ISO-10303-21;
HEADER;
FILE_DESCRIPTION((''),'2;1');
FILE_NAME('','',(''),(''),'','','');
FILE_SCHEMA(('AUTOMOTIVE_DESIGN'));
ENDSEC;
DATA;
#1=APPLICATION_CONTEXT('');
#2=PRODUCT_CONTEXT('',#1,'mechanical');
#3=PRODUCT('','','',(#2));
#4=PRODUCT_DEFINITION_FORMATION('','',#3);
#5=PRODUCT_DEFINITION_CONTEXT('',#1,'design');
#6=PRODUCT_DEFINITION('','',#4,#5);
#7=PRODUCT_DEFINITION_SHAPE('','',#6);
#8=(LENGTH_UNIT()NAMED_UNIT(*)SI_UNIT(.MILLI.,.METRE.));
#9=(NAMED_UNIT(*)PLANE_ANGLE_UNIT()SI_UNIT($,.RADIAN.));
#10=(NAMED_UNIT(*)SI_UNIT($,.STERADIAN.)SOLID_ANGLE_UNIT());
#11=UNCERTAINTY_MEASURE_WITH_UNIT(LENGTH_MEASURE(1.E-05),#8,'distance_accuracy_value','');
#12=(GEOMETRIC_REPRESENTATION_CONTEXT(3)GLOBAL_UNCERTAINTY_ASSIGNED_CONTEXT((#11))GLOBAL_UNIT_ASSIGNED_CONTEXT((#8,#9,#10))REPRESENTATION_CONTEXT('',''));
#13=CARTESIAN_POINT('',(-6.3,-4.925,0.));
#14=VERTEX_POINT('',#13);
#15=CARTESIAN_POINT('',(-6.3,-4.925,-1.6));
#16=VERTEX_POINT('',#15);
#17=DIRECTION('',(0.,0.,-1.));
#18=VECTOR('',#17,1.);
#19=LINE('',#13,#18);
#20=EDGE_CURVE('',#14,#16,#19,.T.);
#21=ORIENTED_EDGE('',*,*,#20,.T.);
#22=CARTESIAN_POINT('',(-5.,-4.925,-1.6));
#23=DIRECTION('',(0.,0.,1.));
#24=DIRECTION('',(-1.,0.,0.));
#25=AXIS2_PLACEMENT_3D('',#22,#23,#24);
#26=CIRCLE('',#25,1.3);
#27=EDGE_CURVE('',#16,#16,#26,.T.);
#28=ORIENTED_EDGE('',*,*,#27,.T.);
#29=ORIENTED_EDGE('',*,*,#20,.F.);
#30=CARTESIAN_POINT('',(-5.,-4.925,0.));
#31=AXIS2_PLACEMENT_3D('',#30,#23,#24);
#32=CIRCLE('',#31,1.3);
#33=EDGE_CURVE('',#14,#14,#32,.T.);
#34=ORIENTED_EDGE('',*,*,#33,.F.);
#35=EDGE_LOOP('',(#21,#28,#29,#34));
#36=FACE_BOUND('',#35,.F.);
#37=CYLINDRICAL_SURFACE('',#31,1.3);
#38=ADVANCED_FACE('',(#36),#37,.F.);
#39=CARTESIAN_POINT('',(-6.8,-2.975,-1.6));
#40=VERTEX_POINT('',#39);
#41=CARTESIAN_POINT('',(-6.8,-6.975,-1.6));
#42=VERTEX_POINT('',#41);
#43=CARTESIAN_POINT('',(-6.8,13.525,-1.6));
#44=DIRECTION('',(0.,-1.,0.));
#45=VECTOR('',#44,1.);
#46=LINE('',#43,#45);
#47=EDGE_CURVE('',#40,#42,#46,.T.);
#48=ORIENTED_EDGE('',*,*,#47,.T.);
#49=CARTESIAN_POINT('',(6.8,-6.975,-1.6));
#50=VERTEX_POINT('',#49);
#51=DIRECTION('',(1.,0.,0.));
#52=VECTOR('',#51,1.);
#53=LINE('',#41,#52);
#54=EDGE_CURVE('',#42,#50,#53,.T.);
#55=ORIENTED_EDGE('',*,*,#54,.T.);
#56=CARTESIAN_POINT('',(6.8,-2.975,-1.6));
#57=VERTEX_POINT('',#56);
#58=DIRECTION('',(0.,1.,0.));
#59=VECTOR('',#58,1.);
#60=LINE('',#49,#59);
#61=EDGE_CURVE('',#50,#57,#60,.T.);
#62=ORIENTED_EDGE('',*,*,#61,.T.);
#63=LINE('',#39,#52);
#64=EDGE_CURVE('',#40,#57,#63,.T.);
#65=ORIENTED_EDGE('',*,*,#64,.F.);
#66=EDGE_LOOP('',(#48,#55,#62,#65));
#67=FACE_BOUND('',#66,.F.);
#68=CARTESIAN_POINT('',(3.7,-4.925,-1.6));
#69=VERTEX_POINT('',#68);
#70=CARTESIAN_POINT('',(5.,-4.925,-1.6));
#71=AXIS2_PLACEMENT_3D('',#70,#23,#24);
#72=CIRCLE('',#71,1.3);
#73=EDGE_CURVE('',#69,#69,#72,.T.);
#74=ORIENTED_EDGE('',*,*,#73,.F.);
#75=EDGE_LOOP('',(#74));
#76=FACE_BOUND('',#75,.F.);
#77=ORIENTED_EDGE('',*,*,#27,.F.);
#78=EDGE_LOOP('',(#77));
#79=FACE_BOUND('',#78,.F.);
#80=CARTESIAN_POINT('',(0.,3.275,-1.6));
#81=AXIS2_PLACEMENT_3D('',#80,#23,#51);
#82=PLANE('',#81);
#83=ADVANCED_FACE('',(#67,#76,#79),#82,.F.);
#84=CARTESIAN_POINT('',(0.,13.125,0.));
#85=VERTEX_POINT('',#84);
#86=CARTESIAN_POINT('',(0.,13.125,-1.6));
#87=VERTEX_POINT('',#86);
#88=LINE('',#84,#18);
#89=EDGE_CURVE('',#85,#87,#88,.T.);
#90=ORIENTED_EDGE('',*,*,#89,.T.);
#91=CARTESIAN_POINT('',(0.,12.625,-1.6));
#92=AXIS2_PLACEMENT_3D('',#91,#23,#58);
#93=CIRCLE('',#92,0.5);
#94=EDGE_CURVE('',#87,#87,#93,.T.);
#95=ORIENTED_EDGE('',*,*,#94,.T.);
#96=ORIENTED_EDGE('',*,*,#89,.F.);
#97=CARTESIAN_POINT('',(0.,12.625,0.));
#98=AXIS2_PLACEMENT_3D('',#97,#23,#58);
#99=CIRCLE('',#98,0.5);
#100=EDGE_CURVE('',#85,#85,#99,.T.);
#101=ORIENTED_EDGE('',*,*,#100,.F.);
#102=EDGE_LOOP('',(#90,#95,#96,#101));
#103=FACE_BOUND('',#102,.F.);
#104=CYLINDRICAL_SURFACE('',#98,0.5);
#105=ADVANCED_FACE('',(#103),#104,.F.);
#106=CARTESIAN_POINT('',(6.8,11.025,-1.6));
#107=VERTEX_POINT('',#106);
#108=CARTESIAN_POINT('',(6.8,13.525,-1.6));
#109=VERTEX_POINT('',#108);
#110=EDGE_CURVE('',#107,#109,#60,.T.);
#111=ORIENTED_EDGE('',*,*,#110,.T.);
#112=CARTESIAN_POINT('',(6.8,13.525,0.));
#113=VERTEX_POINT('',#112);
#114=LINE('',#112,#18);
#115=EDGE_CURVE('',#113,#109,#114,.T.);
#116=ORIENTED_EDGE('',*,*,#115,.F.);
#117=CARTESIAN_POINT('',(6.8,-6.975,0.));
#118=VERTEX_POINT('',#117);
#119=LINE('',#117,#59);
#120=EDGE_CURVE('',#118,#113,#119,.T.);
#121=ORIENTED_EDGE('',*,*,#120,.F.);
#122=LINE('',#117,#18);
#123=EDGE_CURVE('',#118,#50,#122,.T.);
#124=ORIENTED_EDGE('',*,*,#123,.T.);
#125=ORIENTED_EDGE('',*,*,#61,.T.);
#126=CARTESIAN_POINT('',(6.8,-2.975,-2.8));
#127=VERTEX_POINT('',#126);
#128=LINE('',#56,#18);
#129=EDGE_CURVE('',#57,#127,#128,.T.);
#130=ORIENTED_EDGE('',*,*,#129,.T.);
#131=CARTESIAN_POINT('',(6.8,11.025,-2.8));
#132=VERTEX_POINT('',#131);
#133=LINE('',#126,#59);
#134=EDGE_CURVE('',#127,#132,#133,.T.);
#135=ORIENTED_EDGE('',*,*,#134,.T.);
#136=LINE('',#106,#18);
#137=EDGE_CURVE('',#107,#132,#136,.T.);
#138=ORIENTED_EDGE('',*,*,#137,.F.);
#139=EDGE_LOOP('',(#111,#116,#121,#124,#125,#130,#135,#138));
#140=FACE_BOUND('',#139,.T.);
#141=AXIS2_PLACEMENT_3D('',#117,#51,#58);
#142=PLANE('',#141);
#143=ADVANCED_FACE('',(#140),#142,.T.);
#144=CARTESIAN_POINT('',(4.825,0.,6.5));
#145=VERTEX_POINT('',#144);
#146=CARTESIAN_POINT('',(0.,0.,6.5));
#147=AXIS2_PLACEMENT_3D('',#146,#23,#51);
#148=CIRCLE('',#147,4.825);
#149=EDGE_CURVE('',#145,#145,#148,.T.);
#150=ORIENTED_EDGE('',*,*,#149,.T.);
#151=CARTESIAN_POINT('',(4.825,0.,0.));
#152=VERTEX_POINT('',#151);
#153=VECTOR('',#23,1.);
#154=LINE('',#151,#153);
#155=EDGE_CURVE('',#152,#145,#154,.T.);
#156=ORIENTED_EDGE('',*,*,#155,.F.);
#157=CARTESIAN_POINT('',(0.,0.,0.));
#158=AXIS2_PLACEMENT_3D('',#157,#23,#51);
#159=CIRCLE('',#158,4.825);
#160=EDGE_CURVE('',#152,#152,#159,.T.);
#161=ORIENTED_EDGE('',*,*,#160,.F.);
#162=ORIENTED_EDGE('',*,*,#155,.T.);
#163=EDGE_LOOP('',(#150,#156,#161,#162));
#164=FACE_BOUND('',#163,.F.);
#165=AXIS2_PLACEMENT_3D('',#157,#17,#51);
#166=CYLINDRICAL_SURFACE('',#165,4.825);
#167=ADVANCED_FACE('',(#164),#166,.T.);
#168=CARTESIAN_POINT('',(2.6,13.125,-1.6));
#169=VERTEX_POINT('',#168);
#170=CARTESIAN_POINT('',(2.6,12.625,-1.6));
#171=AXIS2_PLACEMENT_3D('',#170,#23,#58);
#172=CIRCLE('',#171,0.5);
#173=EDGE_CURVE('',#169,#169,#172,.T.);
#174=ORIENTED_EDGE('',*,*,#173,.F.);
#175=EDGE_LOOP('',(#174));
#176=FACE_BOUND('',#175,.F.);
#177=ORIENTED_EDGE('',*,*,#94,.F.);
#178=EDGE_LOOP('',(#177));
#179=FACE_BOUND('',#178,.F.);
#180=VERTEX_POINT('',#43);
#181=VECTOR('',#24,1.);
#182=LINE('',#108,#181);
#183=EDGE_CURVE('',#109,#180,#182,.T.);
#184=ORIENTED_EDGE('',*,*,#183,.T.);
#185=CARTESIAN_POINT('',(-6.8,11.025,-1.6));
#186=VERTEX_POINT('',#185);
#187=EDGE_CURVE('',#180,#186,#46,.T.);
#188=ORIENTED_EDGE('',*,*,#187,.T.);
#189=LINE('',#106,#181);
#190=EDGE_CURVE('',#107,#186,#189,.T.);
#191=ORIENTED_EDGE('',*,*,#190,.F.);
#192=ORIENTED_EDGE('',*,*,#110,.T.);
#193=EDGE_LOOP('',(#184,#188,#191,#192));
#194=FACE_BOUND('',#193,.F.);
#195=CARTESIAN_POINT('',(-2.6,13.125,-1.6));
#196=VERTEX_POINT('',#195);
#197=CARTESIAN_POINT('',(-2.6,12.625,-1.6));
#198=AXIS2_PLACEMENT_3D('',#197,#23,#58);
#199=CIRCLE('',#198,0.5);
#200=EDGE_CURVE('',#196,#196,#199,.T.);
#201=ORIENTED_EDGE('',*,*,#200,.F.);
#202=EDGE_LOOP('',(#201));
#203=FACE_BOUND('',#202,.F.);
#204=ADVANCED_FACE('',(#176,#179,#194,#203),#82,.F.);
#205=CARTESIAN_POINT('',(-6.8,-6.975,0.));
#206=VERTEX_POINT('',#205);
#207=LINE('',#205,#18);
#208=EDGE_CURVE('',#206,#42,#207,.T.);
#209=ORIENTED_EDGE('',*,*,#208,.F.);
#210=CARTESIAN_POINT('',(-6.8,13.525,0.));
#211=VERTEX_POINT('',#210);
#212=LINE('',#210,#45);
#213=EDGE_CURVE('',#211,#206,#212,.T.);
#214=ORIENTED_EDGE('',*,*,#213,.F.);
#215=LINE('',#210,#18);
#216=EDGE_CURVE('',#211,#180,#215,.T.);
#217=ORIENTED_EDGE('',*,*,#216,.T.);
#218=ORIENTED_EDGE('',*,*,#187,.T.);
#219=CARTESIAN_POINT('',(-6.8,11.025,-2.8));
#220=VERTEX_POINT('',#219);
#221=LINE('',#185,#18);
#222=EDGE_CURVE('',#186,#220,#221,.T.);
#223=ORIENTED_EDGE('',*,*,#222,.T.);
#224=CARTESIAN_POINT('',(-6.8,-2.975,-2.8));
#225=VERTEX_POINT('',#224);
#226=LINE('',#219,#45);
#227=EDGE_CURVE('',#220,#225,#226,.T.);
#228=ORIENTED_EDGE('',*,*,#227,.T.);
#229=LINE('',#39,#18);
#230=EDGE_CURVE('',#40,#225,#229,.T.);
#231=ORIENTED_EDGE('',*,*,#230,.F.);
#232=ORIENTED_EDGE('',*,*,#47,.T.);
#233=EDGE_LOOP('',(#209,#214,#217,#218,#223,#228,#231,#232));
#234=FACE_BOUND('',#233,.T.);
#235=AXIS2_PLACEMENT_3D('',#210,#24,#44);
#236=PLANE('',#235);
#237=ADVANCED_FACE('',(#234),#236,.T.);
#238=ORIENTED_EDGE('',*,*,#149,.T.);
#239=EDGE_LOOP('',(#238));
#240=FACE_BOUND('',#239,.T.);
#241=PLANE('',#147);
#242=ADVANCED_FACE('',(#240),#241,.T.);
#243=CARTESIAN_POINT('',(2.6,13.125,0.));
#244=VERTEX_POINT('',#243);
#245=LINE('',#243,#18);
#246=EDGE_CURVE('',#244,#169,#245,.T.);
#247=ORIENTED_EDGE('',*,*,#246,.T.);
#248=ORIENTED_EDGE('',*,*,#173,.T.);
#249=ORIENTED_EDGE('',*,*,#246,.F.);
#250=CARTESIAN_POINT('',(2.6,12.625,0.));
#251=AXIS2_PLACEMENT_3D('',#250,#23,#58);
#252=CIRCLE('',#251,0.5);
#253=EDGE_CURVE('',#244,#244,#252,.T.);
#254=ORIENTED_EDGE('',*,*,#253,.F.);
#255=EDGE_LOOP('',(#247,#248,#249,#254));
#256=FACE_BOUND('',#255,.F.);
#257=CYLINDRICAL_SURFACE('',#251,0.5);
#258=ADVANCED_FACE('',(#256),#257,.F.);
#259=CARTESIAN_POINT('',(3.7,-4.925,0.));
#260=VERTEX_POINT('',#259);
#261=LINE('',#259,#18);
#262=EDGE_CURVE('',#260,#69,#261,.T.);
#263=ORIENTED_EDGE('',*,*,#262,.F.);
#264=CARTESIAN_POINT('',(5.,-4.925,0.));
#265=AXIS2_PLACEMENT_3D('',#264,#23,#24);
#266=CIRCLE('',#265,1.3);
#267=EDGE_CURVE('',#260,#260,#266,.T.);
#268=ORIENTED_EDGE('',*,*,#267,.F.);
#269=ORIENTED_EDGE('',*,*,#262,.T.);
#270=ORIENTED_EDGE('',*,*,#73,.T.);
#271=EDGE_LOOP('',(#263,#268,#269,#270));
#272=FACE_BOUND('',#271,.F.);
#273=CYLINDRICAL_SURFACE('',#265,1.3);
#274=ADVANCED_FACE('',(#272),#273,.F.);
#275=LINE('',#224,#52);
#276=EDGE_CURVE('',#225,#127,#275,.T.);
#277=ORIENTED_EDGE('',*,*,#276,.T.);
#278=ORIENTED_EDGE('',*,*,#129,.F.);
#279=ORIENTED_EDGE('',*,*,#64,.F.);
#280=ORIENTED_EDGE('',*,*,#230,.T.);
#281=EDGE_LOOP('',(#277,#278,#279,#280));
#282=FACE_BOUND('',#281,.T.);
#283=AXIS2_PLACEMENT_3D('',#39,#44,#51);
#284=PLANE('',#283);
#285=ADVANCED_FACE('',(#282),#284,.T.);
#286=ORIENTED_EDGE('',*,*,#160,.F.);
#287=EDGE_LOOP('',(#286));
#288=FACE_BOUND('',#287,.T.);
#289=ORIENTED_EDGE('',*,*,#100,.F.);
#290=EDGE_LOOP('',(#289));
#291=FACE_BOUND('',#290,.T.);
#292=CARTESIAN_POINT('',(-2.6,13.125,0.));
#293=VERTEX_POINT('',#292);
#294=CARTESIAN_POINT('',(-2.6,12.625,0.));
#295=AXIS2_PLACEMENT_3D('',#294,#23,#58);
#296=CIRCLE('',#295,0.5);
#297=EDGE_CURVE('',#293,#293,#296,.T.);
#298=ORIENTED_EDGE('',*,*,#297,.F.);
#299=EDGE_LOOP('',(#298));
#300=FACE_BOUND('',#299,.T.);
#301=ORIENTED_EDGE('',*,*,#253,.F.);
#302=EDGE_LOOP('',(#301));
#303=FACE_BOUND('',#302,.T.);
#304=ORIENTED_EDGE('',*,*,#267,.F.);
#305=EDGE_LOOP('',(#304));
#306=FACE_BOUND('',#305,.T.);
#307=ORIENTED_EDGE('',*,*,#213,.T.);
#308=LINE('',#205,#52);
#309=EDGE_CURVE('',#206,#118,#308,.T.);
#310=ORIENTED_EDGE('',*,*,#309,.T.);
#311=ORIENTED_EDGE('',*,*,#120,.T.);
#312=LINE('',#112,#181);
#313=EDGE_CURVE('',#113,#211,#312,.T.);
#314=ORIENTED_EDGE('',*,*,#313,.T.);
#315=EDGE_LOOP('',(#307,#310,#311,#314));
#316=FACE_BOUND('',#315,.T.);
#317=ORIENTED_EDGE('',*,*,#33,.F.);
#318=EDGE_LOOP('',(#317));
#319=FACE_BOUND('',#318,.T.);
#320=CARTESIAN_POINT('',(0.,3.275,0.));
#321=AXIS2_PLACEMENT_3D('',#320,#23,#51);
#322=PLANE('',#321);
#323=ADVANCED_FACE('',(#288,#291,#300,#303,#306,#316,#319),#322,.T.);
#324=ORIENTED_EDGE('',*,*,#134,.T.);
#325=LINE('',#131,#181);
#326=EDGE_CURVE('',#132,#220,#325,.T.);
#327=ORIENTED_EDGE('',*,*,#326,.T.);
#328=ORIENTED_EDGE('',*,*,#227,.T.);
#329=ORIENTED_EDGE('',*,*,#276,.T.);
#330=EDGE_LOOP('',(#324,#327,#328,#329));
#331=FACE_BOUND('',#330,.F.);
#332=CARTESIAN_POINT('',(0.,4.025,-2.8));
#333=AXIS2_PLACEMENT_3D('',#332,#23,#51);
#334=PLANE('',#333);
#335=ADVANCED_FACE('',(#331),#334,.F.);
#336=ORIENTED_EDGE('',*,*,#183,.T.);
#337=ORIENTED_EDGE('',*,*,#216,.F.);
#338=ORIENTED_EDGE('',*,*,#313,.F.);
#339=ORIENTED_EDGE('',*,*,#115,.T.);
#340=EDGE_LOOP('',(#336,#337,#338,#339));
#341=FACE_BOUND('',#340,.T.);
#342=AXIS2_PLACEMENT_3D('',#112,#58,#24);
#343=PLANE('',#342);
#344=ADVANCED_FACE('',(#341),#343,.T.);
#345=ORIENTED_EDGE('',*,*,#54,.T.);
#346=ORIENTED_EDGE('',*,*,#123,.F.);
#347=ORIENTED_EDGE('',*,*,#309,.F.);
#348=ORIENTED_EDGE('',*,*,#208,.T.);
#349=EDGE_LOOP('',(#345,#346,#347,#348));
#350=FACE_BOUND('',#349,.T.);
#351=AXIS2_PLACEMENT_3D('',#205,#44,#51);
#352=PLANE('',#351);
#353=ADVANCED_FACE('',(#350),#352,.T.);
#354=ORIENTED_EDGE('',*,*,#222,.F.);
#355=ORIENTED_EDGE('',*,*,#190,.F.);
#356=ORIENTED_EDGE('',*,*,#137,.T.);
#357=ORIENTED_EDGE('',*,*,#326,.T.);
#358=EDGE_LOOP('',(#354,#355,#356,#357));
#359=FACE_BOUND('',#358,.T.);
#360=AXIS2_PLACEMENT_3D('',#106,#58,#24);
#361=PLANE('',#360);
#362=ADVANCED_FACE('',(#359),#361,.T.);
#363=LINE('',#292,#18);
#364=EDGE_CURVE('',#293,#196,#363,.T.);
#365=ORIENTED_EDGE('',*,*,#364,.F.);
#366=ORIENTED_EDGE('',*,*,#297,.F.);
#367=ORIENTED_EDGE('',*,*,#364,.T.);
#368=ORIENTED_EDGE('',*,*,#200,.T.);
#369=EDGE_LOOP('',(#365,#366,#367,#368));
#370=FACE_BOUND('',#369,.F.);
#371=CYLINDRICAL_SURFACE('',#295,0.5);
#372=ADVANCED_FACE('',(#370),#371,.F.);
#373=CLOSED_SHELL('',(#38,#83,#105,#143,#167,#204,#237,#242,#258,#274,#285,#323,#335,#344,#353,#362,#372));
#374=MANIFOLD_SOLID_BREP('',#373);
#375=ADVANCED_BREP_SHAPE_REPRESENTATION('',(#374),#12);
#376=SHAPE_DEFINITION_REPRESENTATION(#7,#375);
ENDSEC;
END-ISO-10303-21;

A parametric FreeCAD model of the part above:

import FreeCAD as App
import Part
import Sketcher

V = App.Vector


def add_polygon(sketch, points):
    """Adds a closed chain of lines whose ends are joined by coincident constraints."""
    first, n = sketch.GeometryCount, len(points)
    for a, b in zip(points, points[1:] + points[:1]):
        sketch.addGeometry(Part.LineSegment(App.Vector(*a, 0), App.Vector(*b, 0)), False)
    for i in range(n):
        sketch.addConstraint(Sketcher.Constraint("Coincident", first + i, 2, first + (i + 1) % n, 1))

doc = App.newDocument("Part")
body = doc.addObject("PartDesign::Body", "Body")

# Sketch on XY plane
sketch1 = doc.addObject("Sketcher::SketchObject", "Sketch")
body.addObject(sketch1)
sketch1.AttachmentSupport = (doc.XY_Plane, [""])
sketch1.MapMode = "FlatFace"
sketch1.addGeometry(Part.Circle(V(0, 0, 0), V(0, 0, 1), 4.8), False)
sketch1.addConstraint([
    Sketcher.Constraint("Coincident", 0, 3, -1, 1),
    Sketcher.Constraint("Diameter", 0, 9.65),
])
pad1 = doc.addObject("PartDesign::Pad", "Pad")
body.addObject(pad1)
pad1.Profile = sketch1
pad1.Length = 6.5

# Sketch on XY plane
sketch2 = doc.addObject("Sketcher::SketchObject", "Sketch001")
body.addObject(sketch2)
sketch2.AttachmentSupport = (doc.XY_Plane, [""])
sketch2.MapMode = "FlatFace"
add_polygon(sketch2, [(7, -7), (-7, -7), (-7, 14), (7, 14)])  # lines 0-3
sketch2.addConstraint([
    Sketcher.Constraint("Horizontal", 0),
    Sketcher.Constraint("Vertical", 1),
    Sketcher.Constraint("Horizontal", 2),
    Sketcher.Constraint("Vertical", 3),
    Sketcher.Constraint("DistanceX", 0, 2, -1, 1, 6.8),
    Sketcher.Constraint("DistanceX", -1, 1, 2, 2, 6.8),
    Sketcher.Constraint("DistanceY", 1, 1, 1, 2, 20.5),
    Sketcher.Constraint("DistanceY", 0, 2, -1, 1, 6.975),
])
pad2 = doc.addObject("PartDesign::Pad", "Pad001")
body.addObject(pad2)
pad2.Profile = sketch2
pad2.Length = 1.6
pad2.Reversed = True

# Sketch on XY plane
sketch3 = doc.addObject("Sketcher::SketchObject", "Sketch002")
body.addObject(sketch3)
sketch3.AttachmentSupport = (doc.XY_Plane, [""])
sketch3.MapMode = "FlatFace"
sketch3.addGeometry([
    Part.Circle(V(-2.6, 12.6, 0), V(0, 0, 1), 0.5),
    Part.Circle(V(0, 12.6, 0), V(0, 0, 1), 0.5),
    Part.Circle(V(2.6, 12.6, 0), V(0, 0, 1), 0.5),
], False)
sketch3.addConstraint([
    Sketcher.Constraint("Equal", 0, 1),
    Sketcher.Constraint("Equal", 1, 2),
    Sketcher.Constraint("Symmetric", 0, 3, 2, 3, -2),
    Sketcher.Constraint("PointOnObject", 1, 3, -2),
    Sketcher.Constraint("Horizontal", 0, 3, 1, 3),
    Sketcher.Constraint("Diameter", 0, 1.0),
    Sketcher.Constraint("DistanceX", 0, 3, -1, 1, 2.6),
    Sketcher.Constraint("DistanceY", -1, 1, 0, 3, 12.625),
])
pocket1 = doc.addObject("PartDesign::Pocket", "Pocket")
body.addObject(pocket1)
pocket1.Profile = sketch3
pocket1.Type = "ThroughAll"

# Sketch on XY plane
sketch4 = doc.addObject("Sketcher::SketchObject", "Sketch003")
body.addObject(sketch4)
sketch4.AttachmentSupport = (doc.XY_Plane, [""])
sketch4.MapMode = "FlatFace"
sketch4.addGeometry([
    Part.Circle(V(-5, -4.9, 0), V(0, 0, 1), 1.3),
    Part.Circle(V(5, -4.9, 0), V(0, 0, 1), 1.3),
], False)
sketch4.addConstraint([
    Sketcher.Constraint("Equal", 0, 1),
    Sketcher.Constraint("Symmetric", 0, 3, 1, 3, -2),
    Sketcher.Constraint("DistanceX", 0, 3, -1, 1, 5.0),
    Sketcher.Constraint("Diameter", 0, 2.6),
    Sketcher.Constraint("DistanceY", 0, 3, -1, 1, 4.925),
])
pocket2 = doc.addObject("PartDesign::Pocket", "Pocket001")
body.addObject(pocket2)
pocket2.Profile = sketch4
pocket2.Type = "ThroughAll"

# Sketch on XY plane
sketch5 = doc.addObject("Sketcher::SketchObject", "Sketch004")
body.addObject(sketch5)
sketch5.AttachmentSupport = (doc.XY_Plane, [""])
sketch5.MapMode = "FlatFace"
sketch5.AttachmentOffset = App.Placement(V(0, 0, -1.6), App.Rotation())
add_polygon(sketch5, [(7, -3), (-7, -3), (-7, 11), (7, 11)])  # lines 0-3
sketch5.addConstraint([
    Sketcher.Constraint("Horizontal", 0),
    Sketcher.Constraint("Vertical", 1),
    Sketcher.Constraint("Horizontal", 2),
    Sketcher.Constraint("Vertical", 3),
    Sketcher.Constraint("DistanceY", 1, 1, 1, 2, 14.0),
    Sketcher.Constraint("DistanceX", 0, 2, 0, 1, 13.6),
    Sketcher.Constraint("DistanceX", 0, 2, -1, 1, 6.8),
    Sketcher.Constraint("DistanceY", 0, 2, -1, 1, 2.975),
])
pad3 = doc.addObject("PartDesign::Pad", "Pad002")
body.addObject(pad3)
pad3.Profile = sketch5
pad3.Length = 1.2
pad3.Reversed = True

doc.recompute()
